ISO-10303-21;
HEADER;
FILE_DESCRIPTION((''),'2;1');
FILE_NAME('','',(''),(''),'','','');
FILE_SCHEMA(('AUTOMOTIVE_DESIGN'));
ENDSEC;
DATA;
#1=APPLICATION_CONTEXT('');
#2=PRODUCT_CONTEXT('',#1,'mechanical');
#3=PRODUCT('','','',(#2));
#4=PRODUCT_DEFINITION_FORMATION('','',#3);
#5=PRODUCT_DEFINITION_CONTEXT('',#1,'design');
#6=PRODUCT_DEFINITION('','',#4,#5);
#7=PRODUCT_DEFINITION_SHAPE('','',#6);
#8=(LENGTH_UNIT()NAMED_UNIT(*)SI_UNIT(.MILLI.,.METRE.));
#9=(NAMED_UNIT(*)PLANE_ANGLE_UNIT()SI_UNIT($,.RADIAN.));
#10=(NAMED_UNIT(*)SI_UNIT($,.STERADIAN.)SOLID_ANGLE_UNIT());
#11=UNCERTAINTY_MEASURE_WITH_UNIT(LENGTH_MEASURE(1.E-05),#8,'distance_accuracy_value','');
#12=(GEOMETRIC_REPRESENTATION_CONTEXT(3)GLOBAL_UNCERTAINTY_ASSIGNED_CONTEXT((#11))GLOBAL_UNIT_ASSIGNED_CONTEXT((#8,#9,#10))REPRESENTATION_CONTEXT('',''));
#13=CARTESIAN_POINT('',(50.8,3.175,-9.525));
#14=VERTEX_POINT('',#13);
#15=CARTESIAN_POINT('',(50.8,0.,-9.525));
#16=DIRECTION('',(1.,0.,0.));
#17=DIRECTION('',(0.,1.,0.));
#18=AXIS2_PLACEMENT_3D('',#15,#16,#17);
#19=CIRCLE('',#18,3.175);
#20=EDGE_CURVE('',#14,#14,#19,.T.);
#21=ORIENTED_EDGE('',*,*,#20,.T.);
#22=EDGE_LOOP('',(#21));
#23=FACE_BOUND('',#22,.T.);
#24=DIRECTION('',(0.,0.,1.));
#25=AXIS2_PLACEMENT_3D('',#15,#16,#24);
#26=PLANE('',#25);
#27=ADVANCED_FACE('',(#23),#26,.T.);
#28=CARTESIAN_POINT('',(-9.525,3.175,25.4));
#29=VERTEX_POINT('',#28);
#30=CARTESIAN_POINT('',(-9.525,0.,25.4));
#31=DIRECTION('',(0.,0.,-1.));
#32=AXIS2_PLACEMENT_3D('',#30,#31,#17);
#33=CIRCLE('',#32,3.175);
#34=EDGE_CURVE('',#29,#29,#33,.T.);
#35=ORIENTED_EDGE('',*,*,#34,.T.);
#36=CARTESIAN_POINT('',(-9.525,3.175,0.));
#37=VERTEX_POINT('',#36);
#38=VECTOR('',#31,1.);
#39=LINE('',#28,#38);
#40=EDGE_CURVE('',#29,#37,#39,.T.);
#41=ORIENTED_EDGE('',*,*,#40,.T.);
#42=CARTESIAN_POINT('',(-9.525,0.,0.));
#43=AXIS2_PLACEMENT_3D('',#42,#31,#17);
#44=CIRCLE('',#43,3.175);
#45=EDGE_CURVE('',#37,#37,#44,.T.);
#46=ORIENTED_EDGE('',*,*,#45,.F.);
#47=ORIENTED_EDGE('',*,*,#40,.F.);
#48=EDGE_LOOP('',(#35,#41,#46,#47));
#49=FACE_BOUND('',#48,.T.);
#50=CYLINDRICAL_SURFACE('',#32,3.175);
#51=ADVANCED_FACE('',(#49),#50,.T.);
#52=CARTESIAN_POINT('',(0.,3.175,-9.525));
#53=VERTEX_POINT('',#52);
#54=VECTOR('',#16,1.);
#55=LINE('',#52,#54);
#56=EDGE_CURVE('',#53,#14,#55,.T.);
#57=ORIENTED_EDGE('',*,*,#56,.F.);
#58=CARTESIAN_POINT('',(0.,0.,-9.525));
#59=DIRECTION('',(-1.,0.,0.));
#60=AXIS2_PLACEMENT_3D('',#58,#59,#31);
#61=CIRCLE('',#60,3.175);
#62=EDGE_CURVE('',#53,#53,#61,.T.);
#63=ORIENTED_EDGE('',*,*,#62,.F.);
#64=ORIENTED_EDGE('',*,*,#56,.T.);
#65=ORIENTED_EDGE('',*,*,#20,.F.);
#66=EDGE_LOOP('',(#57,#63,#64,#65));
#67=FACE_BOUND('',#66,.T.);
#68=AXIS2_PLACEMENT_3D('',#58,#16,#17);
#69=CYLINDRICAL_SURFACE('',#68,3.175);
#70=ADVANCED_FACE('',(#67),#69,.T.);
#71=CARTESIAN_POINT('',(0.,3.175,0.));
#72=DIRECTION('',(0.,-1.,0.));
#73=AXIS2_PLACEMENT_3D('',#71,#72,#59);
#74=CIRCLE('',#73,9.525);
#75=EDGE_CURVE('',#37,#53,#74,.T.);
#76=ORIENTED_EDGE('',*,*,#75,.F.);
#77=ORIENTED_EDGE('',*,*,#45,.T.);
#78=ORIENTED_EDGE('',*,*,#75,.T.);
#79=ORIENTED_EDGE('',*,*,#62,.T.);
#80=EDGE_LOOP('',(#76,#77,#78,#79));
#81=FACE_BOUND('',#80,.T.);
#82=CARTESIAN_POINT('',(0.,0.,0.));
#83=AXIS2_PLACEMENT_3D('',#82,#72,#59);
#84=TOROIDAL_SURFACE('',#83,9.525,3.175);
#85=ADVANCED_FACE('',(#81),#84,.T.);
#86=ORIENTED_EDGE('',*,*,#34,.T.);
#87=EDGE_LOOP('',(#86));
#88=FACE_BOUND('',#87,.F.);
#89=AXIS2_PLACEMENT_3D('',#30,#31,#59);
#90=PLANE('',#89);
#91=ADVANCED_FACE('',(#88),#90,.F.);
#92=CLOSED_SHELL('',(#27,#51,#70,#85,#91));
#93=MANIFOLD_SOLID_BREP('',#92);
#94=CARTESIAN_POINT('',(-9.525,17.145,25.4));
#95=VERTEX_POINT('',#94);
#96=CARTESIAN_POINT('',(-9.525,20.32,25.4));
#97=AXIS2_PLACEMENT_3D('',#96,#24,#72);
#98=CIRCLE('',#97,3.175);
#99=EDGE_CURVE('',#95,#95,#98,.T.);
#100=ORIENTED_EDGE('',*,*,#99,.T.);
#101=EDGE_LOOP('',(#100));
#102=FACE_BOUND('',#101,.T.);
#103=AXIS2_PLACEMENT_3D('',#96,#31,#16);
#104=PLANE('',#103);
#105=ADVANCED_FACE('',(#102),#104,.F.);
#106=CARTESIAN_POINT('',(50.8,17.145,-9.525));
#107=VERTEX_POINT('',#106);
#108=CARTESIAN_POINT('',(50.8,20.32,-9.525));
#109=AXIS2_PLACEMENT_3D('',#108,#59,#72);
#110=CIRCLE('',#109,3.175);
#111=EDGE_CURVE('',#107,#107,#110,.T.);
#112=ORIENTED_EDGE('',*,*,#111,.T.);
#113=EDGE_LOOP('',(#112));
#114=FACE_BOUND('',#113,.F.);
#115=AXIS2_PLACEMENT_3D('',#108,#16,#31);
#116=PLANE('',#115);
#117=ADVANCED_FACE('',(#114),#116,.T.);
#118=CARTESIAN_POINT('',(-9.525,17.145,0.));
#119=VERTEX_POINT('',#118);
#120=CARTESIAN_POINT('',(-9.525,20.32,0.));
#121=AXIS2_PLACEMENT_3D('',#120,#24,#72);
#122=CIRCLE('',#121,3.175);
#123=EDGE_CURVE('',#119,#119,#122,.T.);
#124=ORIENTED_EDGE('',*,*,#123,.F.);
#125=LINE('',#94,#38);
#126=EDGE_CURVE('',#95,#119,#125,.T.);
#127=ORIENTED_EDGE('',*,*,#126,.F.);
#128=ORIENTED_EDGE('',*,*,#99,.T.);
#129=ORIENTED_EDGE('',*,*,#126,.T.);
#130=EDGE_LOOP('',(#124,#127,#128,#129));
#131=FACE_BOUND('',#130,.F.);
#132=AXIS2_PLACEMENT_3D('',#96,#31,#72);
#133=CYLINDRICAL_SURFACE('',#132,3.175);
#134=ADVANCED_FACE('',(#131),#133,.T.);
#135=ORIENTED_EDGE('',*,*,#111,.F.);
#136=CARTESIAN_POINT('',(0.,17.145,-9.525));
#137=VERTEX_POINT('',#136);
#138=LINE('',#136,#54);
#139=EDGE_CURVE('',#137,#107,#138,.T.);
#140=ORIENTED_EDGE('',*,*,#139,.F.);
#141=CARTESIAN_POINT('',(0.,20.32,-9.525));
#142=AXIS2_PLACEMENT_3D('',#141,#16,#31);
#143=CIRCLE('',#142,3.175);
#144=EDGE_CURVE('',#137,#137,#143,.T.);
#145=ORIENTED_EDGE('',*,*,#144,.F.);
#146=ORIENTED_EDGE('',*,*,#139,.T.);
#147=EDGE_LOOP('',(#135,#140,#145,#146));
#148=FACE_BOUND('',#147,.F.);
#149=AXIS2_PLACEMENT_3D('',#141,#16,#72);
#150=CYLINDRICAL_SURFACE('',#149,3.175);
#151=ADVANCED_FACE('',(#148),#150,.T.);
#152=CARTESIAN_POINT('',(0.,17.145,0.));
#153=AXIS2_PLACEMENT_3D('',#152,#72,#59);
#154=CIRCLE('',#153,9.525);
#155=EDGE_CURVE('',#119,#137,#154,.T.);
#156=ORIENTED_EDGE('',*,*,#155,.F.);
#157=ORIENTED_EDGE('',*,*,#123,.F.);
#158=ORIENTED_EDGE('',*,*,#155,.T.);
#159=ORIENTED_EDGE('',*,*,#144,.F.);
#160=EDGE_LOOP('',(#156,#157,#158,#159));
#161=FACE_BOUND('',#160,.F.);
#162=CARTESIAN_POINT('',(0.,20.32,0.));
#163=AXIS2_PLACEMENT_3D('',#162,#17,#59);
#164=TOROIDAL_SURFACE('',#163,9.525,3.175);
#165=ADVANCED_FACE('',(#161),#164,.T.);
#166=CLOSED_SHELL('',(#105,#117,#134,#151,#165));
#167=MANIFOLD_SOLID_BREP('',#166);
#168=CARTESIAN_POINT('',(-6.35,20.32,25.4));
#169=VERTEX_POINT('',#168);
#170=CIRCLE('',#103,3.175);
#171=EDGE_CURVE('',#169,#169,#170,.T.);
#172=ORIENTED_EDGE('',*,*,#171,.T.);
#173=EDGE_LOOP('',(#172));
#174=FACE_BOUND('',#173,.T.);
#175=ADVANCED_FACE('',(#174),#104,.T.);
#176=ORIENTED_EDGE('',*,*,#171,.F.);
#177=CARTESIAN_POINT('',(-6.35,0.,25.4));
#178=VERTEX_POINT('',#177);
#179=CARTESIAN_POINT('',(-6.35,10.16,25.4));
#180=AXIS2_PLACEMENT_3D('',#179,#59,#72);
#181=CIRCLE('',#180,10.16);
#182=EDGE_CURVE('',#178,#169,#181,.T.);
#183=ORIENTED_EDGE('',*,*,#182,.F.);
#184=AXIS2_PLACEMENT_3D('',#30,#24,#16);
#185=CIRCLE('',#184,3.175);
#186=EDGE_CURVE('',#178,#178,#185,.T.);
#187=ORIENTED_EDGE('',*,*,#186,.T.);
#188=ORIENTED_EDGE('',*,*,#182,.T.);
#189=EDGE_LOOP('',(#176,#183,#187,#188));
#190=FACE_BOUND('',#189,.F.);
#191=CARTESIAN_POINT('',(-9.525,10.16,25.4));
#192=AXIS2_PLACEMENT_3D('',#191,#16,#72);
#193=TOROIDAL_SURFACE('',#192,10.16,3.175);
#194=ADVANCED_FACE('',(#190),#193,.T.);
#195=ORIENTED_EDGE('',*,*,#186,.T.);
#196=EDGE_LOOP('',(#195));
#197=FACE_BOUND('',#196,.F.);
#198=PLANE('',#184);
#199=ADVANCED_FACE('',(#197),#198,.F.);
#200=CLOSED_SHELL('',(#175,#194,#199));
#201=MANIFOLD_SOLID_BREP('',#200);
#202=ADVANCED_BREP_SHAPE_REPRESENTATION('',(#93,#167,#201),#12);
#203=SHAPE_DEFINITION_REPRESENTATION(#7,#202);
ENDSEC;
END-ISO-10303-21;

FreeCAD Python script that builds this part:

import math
import FreeCAD as App
import Part
import Sketcher
Q = App.Units.Quantity

doc = App.newDocument("Part")
body = doc.addObject("PartDesign::Body", "Body")

sketch1 = body.newObject("Sketcher::SketchObject", "Sketch")
sketch1.AttachmentSupport = (doc.getObject("YZ_Plane"), [""])
sketch1.MapMode = "FlatFace"
sketch1.AttachmentOffset = App.Placement(App.Vector(0, 0, 2 * 25.4), App.Rotation())
sketch1.addGeometry(Part.Circle(App.Vector(0, -9.525, 0), App.Vector(0, 0, 1), 3.175), False)
sketch1.addConstraint(Sketcher.Constraint("PointOnObject", 0, 3, -2))
sketch1.addConstraint(Sketcher.Constraint("Diameter", 0, Q("0.25 in")))
sketch1.addConstraint(Sketcher.Constraint("DistanceY", 0, 3, -1, 1, Q("0.375 in")))

sketch2 = body.newObject("Sketcher::SketchObject", "Sketch001")
sketch2.AttachmentSupport = (doc.getObject("XZ_Plane"), [""])
sketch2.MapMode = "FlatFace"
sketch2.addGeometry(Part.LineSegment(App.Vector(-9.525, 25.4, 0), App.Vector(-9.525, 0, 0)), False)
sketch2.addGeometry(Part.ArcOfCircle(Part.Circle(App.Vector(0, 0, 0), App.Vector(0, 0, 1), 9.525), math.radians(180), math.radians(270)), False)
sketch2.addGeometry(Part.LineSegment(App.Vector(0, -9.525, 0), App.Vector(50.8, -9.525, 0)), False)
sketch2.addConstraint(Sketcher.Constraint("Tangent", 0, 2, 1, 1))
sketch2.addConstraint(Sketcher.Constraint("Tangent", 1, 2, 2, 1))
sketch2.addConstraint(Sketcher.Constraint("Vertical", 0))
sketch2.addConstraint(Sketcher.Constraint("Horizontal", 2))
sketch2.addConstraint(Sketcher.Constraint("Coincident", 1, 3, -1, 1))
sketch2.addConstraint(Sketcher.Constraint("DistanceX", 2, 1, 2, 2, Q("2 in")))
sketch2.addConstraint(Sketcher.Constraint("DistanceY", 0, 2, 0, 1, Q("1 in")))
sketch2.addConstraint(Sketcher.Constraint("Radius", 1, Q("0.375 in")))
doc.recompute()

additivepipe = body.newObject("PartDesign::AdditivePipe", "AdditivePipe")
additivepipe.Profile = sketch1
additivepipe.Spine = (sketch2, ["Edge1", "Edge2", "Edge3"])
body2 = doc.addObject("PartDesign::Body", "Body001")
doc.recompute()

mirroring = doc.addObject("Part::Mirroring", "Mirroring")
mirroring.Source = body
mirroring.Base = App.Vector(0, 10.16, 0)
mirroring.Normal = App.Vector(0, -1, 0)
body2.BaseFeature = mirroring
doc.recompute()
body3 = doc.addObject("PartDesign::Body", "Body002")

sketch3 = body3.newObject("Sketcher::SketchObject", "Sketch002")
sketch3.AttachmentSupport = (doc.getObject("XY_Plane002"), [""])
sketch3.MapMode = "FlatFace"
sketch3.AttachmentOffset = App.Placement(App.Vector(0, 0, 1 * 25.4), App.Rotation())
sketch3.addGeometry(Part.Circle(App.Vector(-9.525, 0, 0), App.Vector(0, 0, 1), 3.175), False)
sketch3.addGeometry(Part.LineSegment(App.Vector(-9.525, 10.16, 0), App.Vector(-19.525, 10.16, 0)), True)
sketch3.addConstraint(Sketcher.Constraint("Horizontal", 1))
sketch3.addConstraint(Sketcher.Constraint("PointOnObject", 0, 3, -1))
sketch3.addConstraint(Sketcher.Constraint("Vertical", 0, 3, 1, 1))
sketch3.addConstraint(Sketcher.Constraint("Diameter", 0, Q("0.25 in")))
sketch3.addConstraint(Sketcher.Constraint("DistanceY", -1, 1, 1, 1, Q("0.4 in")))
sketch3.addConstraint(Sketcher.Constraint("DistanceX", 0, 3, -1, 1, Q("0.375 in")))
sketch3.addConstraint(Sketcher.Constraint("DistanceX", 1, 2, 1, 1, 10.0))
revolution = body3.newObject("PartDesign::Revolution", "Revolution")
revolution.Profile = sketch3
revolution.ReferenceAxis = (sketch3, ["Axis0"])
revolution.Angle = 180
mirroring.Visibility = False

doc.recompute()
